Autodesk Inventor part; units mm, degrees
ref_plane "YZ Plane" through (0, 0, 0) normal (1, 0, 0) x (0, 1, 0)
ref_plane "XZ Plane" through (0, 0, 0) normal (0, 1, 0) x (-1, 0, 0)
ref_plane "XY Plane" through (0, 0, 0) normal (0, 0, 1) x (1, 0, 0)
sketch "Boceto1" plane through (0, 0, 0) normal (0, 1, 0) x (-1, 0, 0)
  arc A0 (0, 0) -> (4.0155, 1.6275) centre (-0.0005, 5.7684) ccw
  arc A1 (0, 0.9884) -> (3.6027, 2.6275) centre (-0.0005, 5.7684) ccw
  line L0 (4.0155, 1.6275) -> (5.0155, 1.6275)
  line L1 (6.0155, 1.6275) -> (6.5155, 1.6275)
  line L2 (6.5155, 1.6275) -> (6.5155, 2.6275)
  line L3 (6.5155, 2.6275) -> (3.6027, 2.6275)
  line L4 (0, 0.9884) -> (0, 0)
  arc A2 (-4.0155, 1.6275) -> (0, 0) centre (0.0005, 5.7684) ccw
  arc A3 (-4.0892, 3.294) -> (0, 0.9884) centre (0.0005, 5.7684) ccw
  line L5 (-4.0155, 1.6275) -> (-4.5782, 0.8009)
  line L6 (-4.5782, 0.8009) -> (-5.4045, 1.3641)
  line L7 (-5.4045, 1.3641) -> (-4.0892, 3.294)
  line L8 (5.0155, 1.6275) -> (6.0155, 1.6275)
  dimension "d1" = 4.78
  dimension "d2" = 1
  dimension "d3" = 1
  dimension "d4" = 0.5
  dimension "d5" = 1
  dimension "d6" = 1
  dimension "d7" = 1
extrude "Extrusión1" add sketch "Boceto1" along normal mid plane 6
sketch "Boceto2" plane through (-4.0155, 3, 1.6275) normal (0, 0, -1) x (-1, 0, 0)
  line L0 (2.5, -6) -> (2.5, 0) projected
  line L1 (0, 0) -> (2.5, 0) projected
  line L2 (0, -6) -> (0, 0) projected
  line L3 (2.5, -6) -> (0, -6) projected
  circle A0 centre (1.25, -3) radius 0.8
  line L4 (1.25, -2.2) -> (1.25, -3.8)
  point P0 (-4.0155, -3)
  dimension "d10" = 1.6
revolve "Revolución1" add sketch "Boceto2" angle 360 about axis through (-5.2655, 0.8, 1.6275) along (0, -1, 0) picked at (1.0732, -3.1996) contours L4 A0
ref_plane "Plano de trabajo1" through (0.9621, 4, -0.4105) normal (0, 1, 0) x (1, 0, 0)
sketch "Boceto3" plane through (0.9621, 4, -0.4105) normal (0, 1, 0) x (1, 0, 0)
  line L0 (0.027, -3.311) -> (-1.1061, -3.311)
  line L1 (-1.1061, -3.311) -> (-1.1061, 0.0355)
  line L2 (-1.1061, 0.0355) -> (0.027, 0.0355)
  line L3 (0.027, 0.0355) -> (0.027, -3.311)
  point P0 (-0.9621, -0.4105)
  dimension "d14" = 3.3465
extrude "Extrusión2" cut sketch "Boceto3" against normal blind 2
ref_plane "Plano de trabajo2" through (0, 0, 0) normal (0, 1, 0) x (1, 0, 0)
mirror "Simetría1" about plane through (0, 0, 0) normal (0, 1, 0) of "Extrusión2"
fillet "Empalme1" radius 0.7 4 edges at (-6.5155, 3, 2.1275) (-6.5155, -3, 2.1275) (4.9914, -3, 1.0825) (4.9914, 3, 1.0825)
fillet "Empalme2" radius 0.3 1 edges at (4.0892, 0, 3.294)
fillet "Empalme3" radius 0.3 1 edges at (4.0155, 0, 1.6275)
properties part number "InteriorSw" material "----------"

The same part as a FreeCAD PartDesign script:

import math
import FreeCAD as App
import Part
import Sketcher

V = App.Vector
Q = App.Units.Quantity


def edges_at(feature, points):
    """Names of the edges that pass closest to the given points."""
    edges = feature.Shape.Edges
    near = lambda p: min(range(len(edges)), key=lambda i: edges[i].distToShape(Part.Vertex(*p))[0])
    return sorted({f"Edge{near(p) + 1}" for p in points})

doc = App.newDocument("Part")
body = doc.addObject("PartDesign::Body", "Body")

sketch1 = body.newObject("Sketcher::SketchObject", "Sketch")
sketch1.AttachmentSupport = (doc.getObject("XZ_Plane"), [""])
sketch1.MapMode = "FlatFace"
sketch1.addGeometry([
    Part.ArcOfCircle(Part.Circle(V(0, 5.8, 0), V(0, 0, 1), 4.8), math.radians(-139), math.radians(-90)),
    Part.ArcOfCircle(Part.Circle(V(0, 5.8, 0), V(0, 0, 1), 4.8), math.radians(-90), math.radians(-31)),
    Part.LineSegment(V(4.1, 3.3, 0), V(5.4, 1.4, 0)),
    Part.LineSegment(V(5.4, 1.4, 0), V(4.6, 0.8, 0)),
    Part.LineSegment(V(4.6, 0.8, 0), V(4, 1.6, 0)),
    Part.ArcOfCircle(Part.Circle(V(0, 5.8, 0), V(0, 0, 1), 5.8), math.radians(-90), math.radians(-46)),
    Part.ArcOfCircle(Part.Circle(V(0, 5.8, 0), V(0, 0, 1), 5.8), math.radians(-134), math.radians(-90)),
    Part.LineSegment(V(-4, 1.6, 0), V(-6.5, 1.6, 0)),
    Part.LineSegment(V(-6.5, 1.6, 0), V(-6.5, 2.6, 0)),
    Part.LineSegment(V(-6.5, 2.6, 0), V(-3.6, 2.6, 0)),
], False)
sketch1.addConstraint([
    Sketcher.Constraint("Tangent", 0, 2, 1, 1),
    Sketcher.Constraint("Coincident", 1, 2, 2, 1),
    Sketcher.Constraint("Coincident", 2, 2, 3, 1),
    Sketcher.Constraint("Coincident", 3, 2, 4, 1),
    Sketcher.Constraint("Coincident", 4, 2, 5, 2),
    Sketcher.Constraint("Tangent", 5, 1, 6, 2),
    Sketcher.Constraint("Coincident", 6, 1, 7, 1),
    Sketcher.Constraint("Coincident", 7, 2, 8, 1),
    Sketcher.Constraint("Coincident", 8, 2, 9, 1),
    Sketcher.Constraint("Coincident", 9, 2, 0, 1),
    Sketcher.Constraint("Horizontal", 7),
    Sketcher.Constraint("Vertical", 8),
    Sketcher.Constraint("Horizontal", 9),
    Sketcher.Constraint("Coincident", 5, 1, -1, 1),
    Sketcher.Constraint("Coincident", 5, 3, 1, 3),
    Sketcher.Constraint("Equal", 0, 1),
    Sketcher.Constraint("Equal", 5, 6),
    Sketcher.Constraint("Symmetric", 4, 2, 6, 1, -2),
    Sketcher.Constraint("PointOnObject", 0, 2, -2),
    Sketcher.Constraint("Perpendicular", 2, 3),
    Sketcher.Constraint("Equal", 3, 4),
    Sketcher.Constraint("DistanceY", 8, 1, 8, 2, Q("1 mm")),
    Sketcher.Constraint("Radius", 0, Q("4.78 mm")),
    Sketcher.Constraint("Distance", 3, Q("1 mm")),
    Sketcher.Constraint("DistanceX", 7, 2, 7, 1, Q("2.5 mm")),
    Sketcher.Constraint("Radius", 5, Q("5.7685 mm")),
    Sketcher.Constraint("DistanceY", 2, 2, 1, 2, Q("1.93 mm")),
    Sketcher.Constraint("DistanceX", 9, 1, 9, 2, Q("2.9128 mm")),
    Sketcher.Constraint("DistanceY", -1, 1, 1, 2, Q("3.294 mm")),
])
pad1 = body.newObject("PartDesign::Pad", "Pad")
pad1.Profile = sketch1
pad1.Length = 6
pad1.Midplane = True

sketch2 = body.newObject("Sketcher::SketchObject", "Sketch001")
sketch2.AttachmentSupport = (doc.getObject("XY_Plane"), [""])
sketch2.MapMode = "FlatFace"
sketch2.AttachmentOffset = App.Placement(V(0, 0, 1.6275), App.Rotation())
sketch2.addGeometry([
    Part.LineSegment(V(-5.3, -0.8, 0), V(-5.3, 0.8, 0)),
    Part.ArcOfCircle(Part.Circle(V(-5.3, 0, 0), V(0, 0, 1), 0.8), math.radians(-90), math.radians(90)),
], False)
sketch2.addGeometry(Part.LineSegment(V(-5.3, 0.8, 0), V(-5.3, -0.8, 0)), True)
sketch2.addConstraint([
    Sketcher.Constraint("Coincident", 0, 1, 1, 1),
    Sketcher.Constraint("Coincident", 1, 2, 0, 2),
    Sketcher.Constraint("Vertical", 0),
    Sketcher.Constraint("Vertical", 2),
    Sketcher.Constraint("Coincident", 2, 1, 1, 2),
    Sketcher.Constraint("PointOnObject", 1, 3, -1),
    Sketcher.Constraint("Vertical", 1, 3, 0, 1),
    Sketcher.Constraint("Equal", 0, 2),
    Sketcher.Constraint("Radius", 1, Q("0.8 mm")),
    Sketcher.Constraint("DistanceX", 1, 3, -1, 1, Q("5.2655 mm")),
])
revolution = body.newObject("PartDesign::Revolution", "Revolution")
revolution.Profile = sketch2
revolution.ReferenceAxis = (sketch2, ["Axis0"])
revolution.Angle = 360

sketch3 = body.newObject("Sketcher::SketchObject", "Sketch002")
sketch3.AttachmentSupport = (doc.getObject("XZ_Plane"), [""])
sketch3.MapMode = "FlatFace"
sketch3.AttachmentOffset = App.Placement(V(0, 0, -4), App.Rotation())
sketch3.addGeometry([
    Part.LineSegment(V(-0.1, 2.9, 0), V(1, 2.9, 0)),
    Part.LineSegment(V(1, 2.9, 0), V(1, -0.4, 0)),
    Part.LineSegment(V(1, -0.4, 0), V(-0.1, -0.4, 0)),
    Part.LineSegment(V(-0.1, -0.4, 0), V(-0.1, 2.9, 0)),
], False)
sketch3.addConstraint([
    Sketcher.Constraint("Coincident", 0, 2, 1, 1),
    Sketcher.Constraint("Coincident", 1, 2, 2, 1),
    Sketcher.Constraint("Coincident", 2, 2, 3, 1),
    Sketcher.Constraint("Coincident", 3, 2, 0, 1),
    Sketcher.Constraint("Horizontal", 0),
    Sketcher.Constraint("Vertical", 1),
    Sketcher.Constraint("Horizontal", 2),
    Sketcher.Constraint("Vertical", 3),
    Sketcher.Constraint("DistanceY", 1, 2, 1, 1, Q("3.3465 mm")),
    Sketcher.Constraint("DistanceX", 0, 1, 0, 2, Q("1.133 mm")),
    Sketcher.Constraint("DistanceX", -1, 1, 0, 2, Q("0.989 mm")),
    Sketcher.Constraint("DistanceY", 1, 2, -1, 1, Q("0.446 mm")),
])
pocket1 = body.newObject("PartDesign::Pocket", "Pocket")
pocket1.Profile = sketch3
pocket1.Length = 2
pocket1.Reversed = True
doc.recompute()

mirrored = body.newObject("PartDesign::Mirrored", "Mirrored")
mirrored.Originals = [pocket1]
mirrored.MirrorPlane = (doc.getObject("XZ_Plane"), [""])
body.Tip = mirrored
doc.recompute()

fillet = body.newObject("PartDesign::Fillet", "Fillet")
fillet.Base = (mirrored, edges_at(mirrored, [
    (-6.516, 3, 2.127),
    (-6.516, -3, 2.127),
    (4.991, -3, 1.083),
    (4.991, 3, 1.083),
]))
fillet.Radius = 0.7
doc.recompute()

fillet2 = body.newObject("PartDesign::Fillet", "Fillet001")
fillet2.Base = (fillet, edges_at(fillet, [(4.089, 0, 3.294)]))
fillet2.Radius = 0.3
doc.recompute()

fillet3 = body.newObject("PartDesign::Fillet", "Fillet002")
fillet3.Base = (fillet2, edges_at(fillet2, [(4.016, 0, 1.627)]))
fillet3.Radius = 0.3

doc.recompute()
